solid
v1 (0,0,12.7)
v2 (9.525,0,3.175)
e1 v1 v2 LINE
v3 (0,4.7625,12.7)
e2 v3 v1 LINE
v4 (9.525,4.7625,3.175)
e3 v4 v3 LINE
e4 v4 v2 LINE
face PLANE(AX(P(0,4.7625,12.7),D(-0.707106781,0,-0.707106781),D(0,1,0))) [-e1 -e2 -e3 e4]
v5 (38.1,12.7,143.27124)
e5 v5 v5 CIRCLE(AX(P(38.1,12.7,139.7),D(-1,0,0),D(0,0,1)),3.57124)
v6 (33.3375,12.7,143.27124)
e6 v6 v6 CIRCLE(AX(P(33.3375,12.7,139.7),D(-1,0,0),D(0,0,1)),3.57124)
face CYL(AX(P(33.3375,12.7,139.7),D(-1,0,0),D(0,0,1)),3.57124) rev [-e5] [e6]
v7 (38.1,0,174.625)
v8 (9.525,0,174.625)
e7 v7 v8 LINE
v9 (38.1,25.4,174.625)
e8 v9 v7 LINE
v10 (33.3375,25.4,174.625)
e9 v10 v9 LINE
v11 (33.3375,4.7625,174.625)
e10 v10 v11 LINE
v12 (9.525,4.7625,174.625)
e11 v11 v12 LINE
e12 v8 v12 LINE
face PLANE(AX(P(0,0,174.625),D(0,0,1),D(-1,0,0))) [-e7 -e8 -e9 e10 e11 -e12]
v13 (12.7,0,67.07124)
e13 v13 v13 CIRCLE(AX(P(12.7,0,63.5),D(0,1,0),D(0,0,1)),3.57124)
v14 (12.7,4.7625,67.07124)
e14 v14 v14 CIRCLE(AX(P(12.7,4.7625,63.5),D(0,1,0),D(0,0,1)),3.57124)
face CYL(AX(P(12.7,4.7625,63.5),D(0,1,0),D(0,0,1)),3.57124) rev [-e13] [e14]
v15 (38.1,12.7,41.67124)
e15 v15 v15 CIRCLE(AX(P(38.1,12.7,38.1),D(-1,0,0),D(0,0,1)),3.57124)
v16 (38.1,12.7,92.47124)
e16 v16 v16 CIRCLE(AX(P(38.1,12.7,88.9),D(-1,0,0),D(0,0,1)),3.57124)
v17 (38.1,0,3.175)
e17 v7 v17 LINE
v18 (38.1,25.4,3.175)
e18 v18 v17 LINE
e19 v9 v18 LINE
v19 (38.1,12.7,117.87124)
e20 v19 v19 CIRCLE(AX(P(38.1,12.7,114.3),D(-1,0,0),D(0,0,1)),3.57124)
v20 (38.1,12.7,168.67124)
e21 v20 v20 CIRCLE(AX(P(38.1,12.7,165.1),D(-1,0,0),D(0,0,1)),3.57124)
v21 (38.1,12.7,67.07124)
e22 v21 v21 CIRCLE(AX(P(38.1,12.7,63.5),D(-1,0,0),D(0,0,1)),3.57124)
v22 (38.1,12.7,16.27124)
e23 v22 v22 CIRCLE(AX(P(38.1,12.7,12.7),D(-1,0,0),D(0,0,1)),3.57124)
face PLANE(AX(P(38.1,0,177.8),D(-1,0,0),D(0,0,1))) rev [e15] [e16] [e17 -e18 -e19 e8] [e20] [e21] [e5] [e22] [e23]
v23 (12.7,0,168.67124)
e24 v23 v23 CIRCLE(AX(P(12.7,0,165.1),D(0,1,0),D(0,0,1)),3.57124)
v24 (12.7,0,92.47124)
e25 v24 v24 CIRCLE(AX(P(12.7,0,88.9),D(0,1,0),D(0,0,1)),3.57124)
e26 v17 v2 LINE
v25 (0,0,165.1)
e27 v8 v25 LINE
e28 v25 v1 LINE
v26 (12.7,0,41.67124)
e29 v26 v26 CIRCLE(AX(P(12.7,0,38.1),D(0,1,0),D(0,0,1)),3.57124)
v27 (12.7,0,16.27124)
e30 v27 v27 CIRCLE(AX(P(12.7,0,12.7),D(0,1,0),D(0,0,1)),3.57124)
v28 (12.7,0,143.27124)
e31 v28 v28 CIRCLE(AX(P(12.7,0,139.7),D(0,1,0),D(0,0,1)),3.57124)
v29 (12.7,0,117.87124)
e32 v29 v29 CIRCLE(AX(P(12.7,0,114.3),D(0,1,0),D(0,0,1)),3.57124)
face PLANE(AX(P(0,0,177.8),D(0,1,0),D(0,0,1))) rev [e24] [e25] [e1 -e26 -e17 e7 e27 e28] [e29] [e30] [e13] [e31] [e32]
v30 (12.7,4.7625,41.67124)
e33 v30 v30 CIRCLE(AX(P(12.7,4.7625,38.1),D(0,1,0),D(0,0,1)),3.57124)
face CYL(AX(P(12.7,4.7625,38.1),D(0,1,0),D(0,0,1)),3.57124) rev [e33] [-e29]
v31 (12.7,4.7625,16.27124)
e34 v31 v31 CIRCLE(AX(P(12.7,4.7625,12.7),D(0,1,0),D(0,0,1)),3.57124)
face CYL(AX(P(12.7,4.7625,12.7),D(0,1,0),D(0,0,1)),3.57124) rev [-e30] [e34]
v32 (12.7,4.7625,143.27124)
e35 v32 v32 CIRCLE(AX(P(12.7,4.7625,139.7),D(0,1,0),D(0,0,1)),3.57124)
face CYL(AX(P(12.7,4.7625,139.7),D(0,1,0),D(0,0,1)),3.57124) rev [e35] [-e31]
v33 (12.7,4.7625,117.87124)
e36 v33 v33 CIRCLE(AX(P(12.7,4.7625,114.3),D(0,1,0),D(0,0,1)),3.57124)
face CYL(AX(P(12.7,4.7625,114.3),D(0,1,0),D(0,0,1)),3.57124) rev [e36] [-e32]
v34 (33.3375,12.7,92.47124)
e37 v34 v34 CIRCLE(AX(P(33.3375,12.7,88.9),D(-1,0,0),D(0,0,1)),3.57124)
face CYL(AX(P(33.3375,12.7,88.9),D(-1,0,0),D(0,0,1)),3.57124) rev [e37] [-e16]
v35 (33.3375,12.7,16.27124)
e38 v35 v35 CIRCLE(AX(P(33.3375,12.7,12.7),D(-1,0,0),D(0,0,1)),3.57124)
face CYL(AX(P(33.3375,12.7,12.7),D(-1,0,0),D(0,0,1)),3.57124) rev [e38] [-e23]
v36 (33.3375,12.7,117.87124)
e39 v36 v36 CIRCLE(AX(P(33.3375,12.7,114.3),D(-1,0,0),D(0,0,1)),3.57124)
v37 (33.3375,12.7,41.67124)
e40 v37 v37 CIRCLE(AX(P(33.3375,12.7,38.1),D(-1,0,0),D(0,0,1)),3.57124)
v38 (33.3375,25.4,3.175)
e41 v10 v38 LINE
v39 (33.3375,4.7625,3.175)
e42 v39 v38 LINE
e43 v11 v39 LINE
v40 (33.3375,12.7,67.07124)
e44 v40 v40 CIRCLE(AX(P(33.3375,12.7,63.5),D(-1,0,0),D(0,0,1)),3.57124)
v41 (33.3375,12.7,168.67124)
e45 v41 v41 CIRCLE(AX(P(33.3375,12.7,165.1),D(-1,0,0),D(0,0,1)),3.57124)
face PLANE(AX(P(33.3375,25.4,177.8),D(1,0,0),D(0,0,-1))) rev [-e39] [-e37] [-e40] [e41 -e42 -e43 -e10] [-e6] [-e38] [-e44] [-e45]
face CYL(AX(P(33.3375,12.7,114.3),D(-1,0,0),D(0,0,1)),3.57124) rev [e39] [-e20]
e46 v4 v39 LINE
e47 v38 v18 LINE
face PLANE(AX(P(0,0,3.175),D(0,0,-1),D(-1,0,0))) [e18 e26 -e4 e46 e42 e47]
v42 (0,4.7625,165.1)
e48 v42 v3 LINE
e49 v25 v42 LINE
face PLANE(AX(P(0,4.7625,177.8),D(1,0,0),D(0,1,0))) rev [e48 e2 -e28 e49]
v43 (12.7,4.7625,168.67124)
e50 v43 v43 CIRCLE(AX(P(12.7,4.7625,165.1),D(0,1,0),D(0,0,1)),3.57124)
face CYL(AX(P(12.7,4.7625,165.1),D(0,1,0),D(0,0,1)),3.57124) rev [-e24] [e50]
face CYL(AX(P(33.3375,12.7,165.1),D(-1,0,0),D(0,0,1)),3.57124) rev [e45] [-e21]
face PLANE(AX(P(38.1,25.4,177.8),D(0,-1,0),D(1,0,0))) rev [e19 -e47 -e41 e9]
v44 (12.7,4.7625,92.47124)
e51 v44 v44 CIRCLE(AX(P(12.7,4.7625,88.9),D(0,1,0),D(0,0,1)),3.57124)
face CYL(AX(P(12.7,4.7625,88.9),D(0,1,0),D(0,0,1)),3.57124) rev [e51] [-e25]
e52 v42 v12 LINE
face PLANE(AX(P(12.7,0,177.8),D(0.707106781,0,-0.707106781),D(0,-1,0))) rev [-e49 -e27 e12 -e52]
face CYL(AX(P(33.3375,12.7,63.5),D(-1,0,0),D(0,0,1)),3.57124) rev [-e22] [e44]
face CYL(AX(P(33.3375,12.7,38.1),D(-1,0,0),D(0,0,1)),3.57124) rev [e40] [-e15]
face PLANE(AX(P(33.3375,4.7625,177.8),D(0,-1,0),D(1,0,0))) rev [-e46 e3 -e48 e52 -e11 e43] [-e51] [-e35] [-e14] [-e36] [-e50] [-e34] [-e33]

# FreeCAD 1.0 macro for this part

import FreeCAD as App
import Part
import Sketcher
Q = App.Units.Quantity


def edges_at(feature, points):
    """Names of the edges that pass closest to the given points."""
    edges = feature.Shape.Edges
    near = lambda p: min(range(len(edges)), key=lambda i: edges[i].distToShape(Part.Vertex(*p))[0])
    return sorted({f"Edge{near(p) + 1}" for p in points})

doc = App.newDocument("Part")
body = doc.addObject("PartDesign::Body", "Body")

# Sketch on XY plane
sketch1 = doc.addObject("Sketcher::SketchObject", "Sketch")
body.addObject(sketch1)
sketch1.AttachmentSupport = (doc.XY_Plane, [""])
sketch1.MapMode = "FlatFace"
sketch1.addGeometry(Part.LineSegment(App.Vector(0, 0, 0), App.Vector(38.1, 0, 0)), False)
sketch1.addGeometry(Part.LineSegment(App.Vector(38.1, 0, 0), App.Vector(38.1, 25.4, 0)), False)
sketch1.addGeometry(Part.LineSegment(App.Vector(38.1, 25.4, 0), App.Vector(33.3375, 25.4, 0)), False)
sketch1.addGeometry(Part.LineSegment(App.Vector(33.3375, 25.4, 0), App.Vector(33.3375, 4.7625, 0)), False)
sketch1.addGeometry(Part.LineSegment(App.Vector(33.3375, 4.7625, 0), App.Vector(0, 4.7625, 0)), False)
sketch1.addGeometry(Part.LineSegment(App.Vector(0, 4.7625, 0), App.Vector(0, 0, 0)), False)
sketch1.addConstraint(Sketcher.Constraint("Coincident", 0, 2, 1, 1))
sketch1.addConstraint(Sketcher.Constraint("Coincident", 1, 2, 2, 1))
sketch1.addConstraint(Sketcher.Constraint("Coincident", 2, 2, 3, 1))
sketch1.addConstraint(Sketcher.Constraint("Coincident", 3, 2, 4, 1))
sketch1.addConstraint(Sketcher.Constraint("Coincident", 4, 2, 5, 1))
sketch1.addConstraint(Sketcher.Constraint("Coincident", 5, 2, 0, 1))
sketch1.addConstraint(Sketcher.Constraint("Horizontal", 0))
sketch1.addConstraint(Sketcher.Constraint("Vertical", 1))
sketch1.addConstraint(Sketcher.Constraint("Horizontal", 2))
sketch1.addConstraint(Sketcher.Constraint("Vertical", 3))
sketch1.addConstraint(Sketcher.Constraint("Horizontal", 4))
sketch1.addConstraint(Sketcher.Constraint("Vertical", 5))
sketch1.addConstraint(Sketcher.Constraint("Coincident", 5, 2, -1, 1))
sketch1.addConstraint(Sketcher.Constraint("Equal", 2, 5))
sketch1.addConstraint(Sketcher.Constraint("DistanceY", 1, 1, 1, 2, Q("1 in")))
sketch1.addConstraint(Sketcher.Constraint("DistanceX", 0, 1, 0, 2, Q("1.5 in")))
sketch1.addConstraint(Sketcher.Constraint("DistanceX", 2, 2, 2, 1, Q("0.1875 in")))
pad1 = doc.addObject("PartDesign::Pad", "Pad")
body.addObject(pad1)
pad1.Profile = sketch1
pad1.Length = Q("7 in")

# Sketch on XZ plane
sketch2 = doc.addObject("Sketcher::SketchObject", "Sketch001")
body.addObject(sketch2)
sketch2.AttachmentSupport = (doc.XZ_Plane, [""])
sketch2.MapMode = "FlatFace"
sketch2.AttachmentOffset = App.Placement(App.Vector(0, 0, -0.1875 * 25.4), App.Rotation())
sketch2.addGeometry(Part.Circle(App.Vector(12.7, 12.7, 0), App.Vector(0, 0, 1), 3.57124), False)
sketch2.addGeometry(Part.Circle(App.Vector(12.7, 165.1, 0), App.Vector(0, 0, 1), 3.57124), False)
sketch2.addGeometry(Part.Circle(App.Vector(12.7, 139.7, 0), App.Vector(0, 0, 1), 3.57124), False)
sketch2.addGeometry(Part.Circle(App.Vector(12.7, 114.3, 0), App.Vector(0, 0, 1), 3.57124), False)
sketch2.addGeometry(Part.Circle(App.Vector(12.7, 88.9, 0), App.Vector(0, 0, 1), 3.57124), False)
sketch2.addGeometry(Part.Circle(App.Vector(12.7, 63.5, 0), App.Vector(0, 0, 1), 3.57124), False)
sketch2.addGeometry(Part.Circle(App.Vector(12.7, 38.1, 0), App.Vector(0, 0, 1), 3.57124), False)
sketch2.addConstraint(Sketcher.Constraint("Equal", 0, 1))
sketch2.addConstraint(Sketcher.Constraint("Equal", 1, 2))
sketch2.addConstraint(Sketcher.Constraint("Equal", 2, 3))
sketch2.addConstraint(Sketcher.Constraint("Equal", 3, 4))
sketch2.addConstraint(Sketcher.Constraint("Equal", 4, 5))
sketch2.addConstraint(Sketcher.Constraint("Equal", 5, 6))
sketch2.addConstraint(Sketcher.Constraint("Vertical", 0, 3, 1, 3))
sketch2.addConstraint(Sketcher.Constraint("Vertical", 1, 3, 2, 3))
sketch2.addConstraint(Sketcher.Constraint("Vertical", 2, 3, 3, 3))
sketch2.addConstraint(Sketcher.Constraint("Vertical", 3, 3, 4, 3))
sketch2.addConstraint(Sketcher.Constraint("Vertical", 4, 3, 5, 3))
sketch2.addConstraint(Sketcher.Constraint("Vertical", 5, 3, 6, 3))
sketch2.addConstraint(Sketcher.Constraint("DistanceY", 0, 3, 1, 3, Q("6 in")))
sketch2.addConstraint(Sketcher.Constraint("DistanceY", 2, 3, 1, 3, Q("1 in")))
sketch2.addConstraint(Sketcher.Constraint("DistanceY", 3, 3, 2, 3, Q("1 in")))
sketch2.addConstraint(Sketcher.Constraint("DistanceY", 4, 3, 3, 3, Q("1 in")))
sketch2.addConstraint(Sketcher.Constraint("DistanceY", 5, 3, 4, 3, Q("1 in")))
sketch2.addConstraint(Sketcher.Constraint("DistanceY", 6, 3, 5, 3, Q("1 in")))
sketch2.addConstraint(Sketcher.Constraint("Diameter", 0, Q("0.2812 in")))
sketch2.addConstraint(Sketcher.Constraint("DistanceX", -1, 1, 0, 3, Q("0.5 in")))
sketch2.addConstraint(Sketcher.Constraint("DistanceY", -1, 1, 0, 3, Q("0.5 in")))
doc.recompute()
hole = doc.addObject("PartDesign::Hole", "Hole")
body.addObject(hole)
hole.Profile = sketch2
hole.ThreadType = "None"
hole.Diameter = Q("0.2812 in")
hole.DepthType = "ThroughAll"
hole.Reversed = True

# Sketch on YZ plane
sketch3 = doc.addObject("Sketcher::SketchObject", "Sketch002")
body.addObject(sketch3)
sketch3.AttachmentSupport = (doc.YZ_Plane, [""])
sketch3.MapMode = "FlatFace"
sketch3.AttachmentOffset = App.Placement(App.Vector(0, 0, 1.3125 * 25.4), App.Rotation())
sketch3.addGeometry(Part.Circle(App.Vector(12.7, 190.5, 0), App.Vector(0, 0, 1), 3.57124), False)
sketch3.addGeometry(Part.Circle(App.Vector(12.7, 12.7, 0), App.Vector(0, 0, 1), 3.57124), False)
sketch3.addGeometry(Part.Circle(App.Vector(12.7, 38.1, 0), App.Vector(0, 0, 1), 3.57124), False)
sketch3.addGeometry(Part.Circle(App.Vector(12.7, 63.5, 0), App.Vector(0, 0, 1), 3.57124), False)
sketch3.addGeometry(Part.Circle(App.Vector(12.7, 88.9, 0), App.Vector(0, 0, 1), 3.57124), False)
sketch3.addGeometry(Part.Circle(App.Vector(12.7, 114.3, 0), App.Vector(0, 0, 1), 3.57124), False)
sketch3.addGeometry(Part.Circle(App.Vector(12.7, 139.7, 0), App.Vector(0, 0, 1), 3.57124), False)
sketch3.addGeometry(Part.Circle(App.Vector(12.7, 165.1, 0), App.Vector(0, 0, 1), 3.57124), False)
sketch3.addConstraint(Sketcher.Constraint("Equal", 0, 1))
sketch3.addConstraint(Sketcher.Constraint("Equal", 1, 2))
sketch3.addConstraint(Sketcher.Constraint("Equal", 2, 3))
sketch3.addConstraint(Sketcher.Constraint("Equal", 3, 4))
sketch3.addConstraint(Sketcher.Constraint("Equal", 4, 5))
sketch3.addConstraint(Sketcher.Constraint("Equal", 5, 6))
sketch3.addConstraint(Sketcher.Constraint("Equal", 6, 7))
sketch3.addConstraint(Sketcher.Constraint("Vertical", 0, 3, 1, 3))
sketch3.addConstraint(Sketcher.Constraint("Vertical", 1, 3, 2, 3))
sketch3.addConstraint(Sketcher.Constraint("Vertical", 2, 3, 3, 3))
sketch3.addConstraint(Sketcher.Constraint("Vertical", 3, 3, 4, 3))
sketch3.addConstraint(Sketcher.Constraint("Vertical", 4, 3, 5, 3))
sketch3.addConstraint(Sketcher.Constraint("Vertical", 5, 3, 6, 3))
sketch3.addConstraint(Sketcher.Constraint("Vertical", 6, 3, 7, 3))
sketch3.addConstraint(Sketcher.Constraint("DistanceY", 1, 3, 0, 3, Q("7 in")))
sketch3.addConstraint(Sketcher.Constraint("DistanceY", 1, 3, 2, 3, Q("1 in")))
sketch3.addConstraint(Sketcher.Constraint("DistanceY", 2, 3, 3, 3, Q("1 in")))
sketch3.addConstraint(Sketcher.Constraint("DistanceY", 3, 3, 4, 3, Q("1 in")))
sketch3.addConstraint(Sketcher.Constraint("DistanceY", 4, 3, 5, 3, Q("1 in")))
sketch3.addConstraint(Sketcher.Constraint("DistanceY", 5, 3, 6, 3, Q("1 in")))
sketch3.addConstraint(Sketcher.Constraint("DistanceY", 7, 3, 0, 3, Q("1 in")))
sketch3.addConstraint(Sketcher.Constraint("Diameter", 0, Q("0.2812 in")))
sketch3.addConstraint(Sketcher.Constraint("DistanceX", -1, 1, 0, 3, Q("0.5 in")))
sketch3.addConstraint(Sketcher.Constraint("DistanceY", -1, 1, 0, 3, Q("7.5 in")))
doc.recompute()
hole2 = doc.addObject("PartDesign::Hole", "Hole001")
body.addObject(hole2)
hole2.Profile = sketch3
hole2.ThreadType = "None"
hole2.Diameter = Q("0.2812 in")
hole2.DepthType = "Dimension"
hole2.Depth = Q("0.1875 in")
hole2.DrillPoint = "Flat"
hole2.Reversed = True
doc.recompute()

chamfer = doc.addObject("PartDesign::Chamfer", "Chamfer")
body.addObject(chamfer)
chamfer.Base = (hole2, edges_at(hole2, [(0, 2.381, 177.8), (0, 2.381, 0)]))
chamfer.Size = Q("0.5 in")

# Sketch on XY plane
sketch4 = doc.addObject("Sketcher::SketchObject", "Sketch003")
body.addObject(sketch4)
sketch4.AttachmentSupport = (doc.XY_Plane, [""])
sketch4.MapMode = "FlatFace"
sketch4.addGeometry(Part.LineSegment(App.Vector(38.1, 25.4, 0), App.Vector(38.1, 0, 0)), False)
sketch4.addGeometry(Part.LineSegment(App.Vector(38.1, 0, 0), App.Vector(0, 0, 0)), False)
sketch4.addGeometry(Part.LineSegment(App.Vector(0, 0, 0), App.Vector(0, 25.4, 0)), False)
sketch4.addGeometry(Part.LineSegment(App.Vector(0, 25.4, 0), App.Vector(38.1, 25.4, 0)), False)
sketch4.addConstraint(Sketcher.Constraint("Coincident", 0, 2, 1, 1))
sketch4.addConstraint(Sketcher.Constraint("Coincident", 1, 2, 2, 1))
sketch4.addConstraint(Sketcher.Constraint("Coincident", 2, 2, 3, 1))
sketch4.addConstraint(Sketcher.Constraint("Coincident", 3, 2, 0, 1))
sketch4.addConstraint(Sketcher.Constraint("Vertical", 0))
sketch4.addConstraint(Sketcher.Constraint("Horizontal", 1))
sketch4.addConstraint(Sketcher.Constraint("Vertical", 2))
sketch4.addConstraint(Sketcher.Constraint("Horizontal", 3))
sketch4.addConstraint(Sketcher.Constraint("Coincident", 1, 2, -1, 1))
sketch4.addConstraint(Sketcher.Constraint("DistanceY", 0, 2, 0, 1, Q("1 in")))
sketch4.addConstraint(Sketcher.Constraint("DistanceX", 1, 2, 1, 1, Q("1.5 in")))
pocket1 = doc.addObject("PartDesign::Pocket", "Pocket")
body.addObject(pocket1)
pocket1.Profile = sketch4
pocket1.Length = Q("0.125 in")
pocket1.Reversed = True
doc.recompute()

datumplane = doc.addObject("PartDesign::Plane", "DatumPlane")
body.addObject(datumplane)
datumplane.AttachmentSupport = (doc.XY_Plane, [""])
datumplane.MapMode = "FlatFace"
datumplane.AttachmentOffset = App.Placement(App.Vector(0, 0, 3.5 * 25.4), App.Rotation())
mirrored = doc.addObject("PartDesign::Mirrored", "Mirrored")
body.addObject(mirrored)
mirrored.Originals = [pocket1]
mirrored.MirrorPlane = (datumplane, [""])
body.Tip = mirrored

doc.recompute()
